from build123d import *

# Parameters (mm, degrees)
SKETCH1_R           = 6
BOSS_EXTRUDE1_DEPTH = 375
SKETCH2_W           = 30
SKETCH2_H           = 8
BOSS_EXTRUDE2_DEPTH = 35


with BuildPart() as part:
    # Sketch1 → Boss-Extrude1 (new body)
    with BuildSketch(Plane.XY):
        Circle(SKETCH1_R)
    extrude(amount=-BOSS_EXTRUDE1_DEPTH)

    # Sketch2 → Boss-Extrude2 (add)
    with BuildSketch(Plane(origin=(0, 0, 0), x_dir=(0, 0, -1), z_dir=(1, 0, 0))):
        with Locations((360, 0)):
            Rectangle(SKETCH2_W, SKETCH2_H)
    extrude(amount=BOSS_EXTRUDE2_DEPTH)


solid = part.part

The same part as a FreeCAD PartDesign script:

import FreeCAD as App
import Part
import Sketcher
Q = App.Units.Quantity


def add_polygon(sketch, points):
    """Adds a closed chain of lines whose ends are joined by coincident constraints."""
    first, n = sketch.GeometryCount, len(points)
    for a, b in zip(points, points[1:] + points[:1]):
        sketch.addGeometry(Part.LineSegment(App.Vector(*a, 0), App.Vector(*b, 0)), False)
    for i in range(n):
        sketch.addConstraint(Sketcher.Constraint("Coincident", first + i, 2, first + (i + 1) % n, 1))

doc = App.newDocument("Part")
params = doc.addObject("Spreadsheet::Sheet", "Params")
for row, (alias, value) in enumerate([
    ("sketch1_diameter", "12 mm"),
    ("pad1_length", "375 mm"),
    ("sketch2_width", "8 mm"),
    ("sketch2_height", "30 mm"),
    ("pad2_length", "35 mm"),
], start=1):
    params.set(f"A{row}", alias)
    params.set(f"B{row}", "=" + value)
    params.setAlias(f"B{row}", alias)

body = doc.addObject("PartDesign::Body", "Body")

# Sketch on XY plane
sketch1 = body.newObject("Sketcher::SketchObject", "Sketch")
sketch1.AttachmentSupport = (doc.getObject("XY_Plane"), [""])
sketch1.MapMode = "FlatFace"
sketch1.addGeometry(Part.Circle(App.Vector(0, 0, 0), App.Vector(0, 0, 1), 6), False)
sketch1.addConstraint(Sketcher.Constraint("Coincident", 0, 3, -1, 1))
sketch1.addConstraint(Sketcher.Constraint("Diameter", 0, Q("12 mm")))
sketch1.setExpression("Constraints[1]", "Params.sketch1_diameter")
pad1 = body.newObject("PartDesign::Pad", "Pad")
pad1.Profile = sketch1
pad1.setExpression("Length", "Params.pad1_length")
pad1.Reversed = True

# Sketch on YZ plane
sketch2 = body.newObject("Sketcher::SketchObject", "Sketch001")
sketch2.AttachmentSupport = (doc.getObject("YZ_Plane"), [""])
sketch2.MapMode = "FlatFace"
add_polygon(sketch2, [(4, -345), (-4, -345), (-4, -375), (4, -375)])  # lines 0-3
sketch2.addConstraint(Sketcher.Constraint("Horizontal", 0))
sketch2.addConstraint(Sketcher.Constraint("Vertical", 1))
sketch2.addConstraint(Sketcher.Constraint("Horizontal", 2))
sketch2.addConstraint(Sketcher.Constraint("Vertical", 3))
sketch2.addConstraint(Sketcher.Constraint("DistanceX", 0, 2, 0, 1, Q("8 mm")))
sketch2.addConstraint(Sketcher.Constraint("DistanceY", 1, 2, 1, 1, Q("30 mm")))
sketch2.addConstraint(Sketcher.Constraint("DistanceX", 0, 2, -1, 1, Q("4 mm")))
sketch2.addConstraint(Sketcher.Constraint("DistanceY", 0, 2, -1, 1, Q("345 mm")))
sketch2.setExpression("Constraints[8]", "Params.sketch2_width")
sketch2.setExpression("Constraints[9]", "Params.sketch2_height")
pad2 = body.newObject("PartDesign::Pad", "Pad001")
pad2.Profile = sketch2
pad2.setExpression("Length", "Params.pad2_length")

doc.recompute()
